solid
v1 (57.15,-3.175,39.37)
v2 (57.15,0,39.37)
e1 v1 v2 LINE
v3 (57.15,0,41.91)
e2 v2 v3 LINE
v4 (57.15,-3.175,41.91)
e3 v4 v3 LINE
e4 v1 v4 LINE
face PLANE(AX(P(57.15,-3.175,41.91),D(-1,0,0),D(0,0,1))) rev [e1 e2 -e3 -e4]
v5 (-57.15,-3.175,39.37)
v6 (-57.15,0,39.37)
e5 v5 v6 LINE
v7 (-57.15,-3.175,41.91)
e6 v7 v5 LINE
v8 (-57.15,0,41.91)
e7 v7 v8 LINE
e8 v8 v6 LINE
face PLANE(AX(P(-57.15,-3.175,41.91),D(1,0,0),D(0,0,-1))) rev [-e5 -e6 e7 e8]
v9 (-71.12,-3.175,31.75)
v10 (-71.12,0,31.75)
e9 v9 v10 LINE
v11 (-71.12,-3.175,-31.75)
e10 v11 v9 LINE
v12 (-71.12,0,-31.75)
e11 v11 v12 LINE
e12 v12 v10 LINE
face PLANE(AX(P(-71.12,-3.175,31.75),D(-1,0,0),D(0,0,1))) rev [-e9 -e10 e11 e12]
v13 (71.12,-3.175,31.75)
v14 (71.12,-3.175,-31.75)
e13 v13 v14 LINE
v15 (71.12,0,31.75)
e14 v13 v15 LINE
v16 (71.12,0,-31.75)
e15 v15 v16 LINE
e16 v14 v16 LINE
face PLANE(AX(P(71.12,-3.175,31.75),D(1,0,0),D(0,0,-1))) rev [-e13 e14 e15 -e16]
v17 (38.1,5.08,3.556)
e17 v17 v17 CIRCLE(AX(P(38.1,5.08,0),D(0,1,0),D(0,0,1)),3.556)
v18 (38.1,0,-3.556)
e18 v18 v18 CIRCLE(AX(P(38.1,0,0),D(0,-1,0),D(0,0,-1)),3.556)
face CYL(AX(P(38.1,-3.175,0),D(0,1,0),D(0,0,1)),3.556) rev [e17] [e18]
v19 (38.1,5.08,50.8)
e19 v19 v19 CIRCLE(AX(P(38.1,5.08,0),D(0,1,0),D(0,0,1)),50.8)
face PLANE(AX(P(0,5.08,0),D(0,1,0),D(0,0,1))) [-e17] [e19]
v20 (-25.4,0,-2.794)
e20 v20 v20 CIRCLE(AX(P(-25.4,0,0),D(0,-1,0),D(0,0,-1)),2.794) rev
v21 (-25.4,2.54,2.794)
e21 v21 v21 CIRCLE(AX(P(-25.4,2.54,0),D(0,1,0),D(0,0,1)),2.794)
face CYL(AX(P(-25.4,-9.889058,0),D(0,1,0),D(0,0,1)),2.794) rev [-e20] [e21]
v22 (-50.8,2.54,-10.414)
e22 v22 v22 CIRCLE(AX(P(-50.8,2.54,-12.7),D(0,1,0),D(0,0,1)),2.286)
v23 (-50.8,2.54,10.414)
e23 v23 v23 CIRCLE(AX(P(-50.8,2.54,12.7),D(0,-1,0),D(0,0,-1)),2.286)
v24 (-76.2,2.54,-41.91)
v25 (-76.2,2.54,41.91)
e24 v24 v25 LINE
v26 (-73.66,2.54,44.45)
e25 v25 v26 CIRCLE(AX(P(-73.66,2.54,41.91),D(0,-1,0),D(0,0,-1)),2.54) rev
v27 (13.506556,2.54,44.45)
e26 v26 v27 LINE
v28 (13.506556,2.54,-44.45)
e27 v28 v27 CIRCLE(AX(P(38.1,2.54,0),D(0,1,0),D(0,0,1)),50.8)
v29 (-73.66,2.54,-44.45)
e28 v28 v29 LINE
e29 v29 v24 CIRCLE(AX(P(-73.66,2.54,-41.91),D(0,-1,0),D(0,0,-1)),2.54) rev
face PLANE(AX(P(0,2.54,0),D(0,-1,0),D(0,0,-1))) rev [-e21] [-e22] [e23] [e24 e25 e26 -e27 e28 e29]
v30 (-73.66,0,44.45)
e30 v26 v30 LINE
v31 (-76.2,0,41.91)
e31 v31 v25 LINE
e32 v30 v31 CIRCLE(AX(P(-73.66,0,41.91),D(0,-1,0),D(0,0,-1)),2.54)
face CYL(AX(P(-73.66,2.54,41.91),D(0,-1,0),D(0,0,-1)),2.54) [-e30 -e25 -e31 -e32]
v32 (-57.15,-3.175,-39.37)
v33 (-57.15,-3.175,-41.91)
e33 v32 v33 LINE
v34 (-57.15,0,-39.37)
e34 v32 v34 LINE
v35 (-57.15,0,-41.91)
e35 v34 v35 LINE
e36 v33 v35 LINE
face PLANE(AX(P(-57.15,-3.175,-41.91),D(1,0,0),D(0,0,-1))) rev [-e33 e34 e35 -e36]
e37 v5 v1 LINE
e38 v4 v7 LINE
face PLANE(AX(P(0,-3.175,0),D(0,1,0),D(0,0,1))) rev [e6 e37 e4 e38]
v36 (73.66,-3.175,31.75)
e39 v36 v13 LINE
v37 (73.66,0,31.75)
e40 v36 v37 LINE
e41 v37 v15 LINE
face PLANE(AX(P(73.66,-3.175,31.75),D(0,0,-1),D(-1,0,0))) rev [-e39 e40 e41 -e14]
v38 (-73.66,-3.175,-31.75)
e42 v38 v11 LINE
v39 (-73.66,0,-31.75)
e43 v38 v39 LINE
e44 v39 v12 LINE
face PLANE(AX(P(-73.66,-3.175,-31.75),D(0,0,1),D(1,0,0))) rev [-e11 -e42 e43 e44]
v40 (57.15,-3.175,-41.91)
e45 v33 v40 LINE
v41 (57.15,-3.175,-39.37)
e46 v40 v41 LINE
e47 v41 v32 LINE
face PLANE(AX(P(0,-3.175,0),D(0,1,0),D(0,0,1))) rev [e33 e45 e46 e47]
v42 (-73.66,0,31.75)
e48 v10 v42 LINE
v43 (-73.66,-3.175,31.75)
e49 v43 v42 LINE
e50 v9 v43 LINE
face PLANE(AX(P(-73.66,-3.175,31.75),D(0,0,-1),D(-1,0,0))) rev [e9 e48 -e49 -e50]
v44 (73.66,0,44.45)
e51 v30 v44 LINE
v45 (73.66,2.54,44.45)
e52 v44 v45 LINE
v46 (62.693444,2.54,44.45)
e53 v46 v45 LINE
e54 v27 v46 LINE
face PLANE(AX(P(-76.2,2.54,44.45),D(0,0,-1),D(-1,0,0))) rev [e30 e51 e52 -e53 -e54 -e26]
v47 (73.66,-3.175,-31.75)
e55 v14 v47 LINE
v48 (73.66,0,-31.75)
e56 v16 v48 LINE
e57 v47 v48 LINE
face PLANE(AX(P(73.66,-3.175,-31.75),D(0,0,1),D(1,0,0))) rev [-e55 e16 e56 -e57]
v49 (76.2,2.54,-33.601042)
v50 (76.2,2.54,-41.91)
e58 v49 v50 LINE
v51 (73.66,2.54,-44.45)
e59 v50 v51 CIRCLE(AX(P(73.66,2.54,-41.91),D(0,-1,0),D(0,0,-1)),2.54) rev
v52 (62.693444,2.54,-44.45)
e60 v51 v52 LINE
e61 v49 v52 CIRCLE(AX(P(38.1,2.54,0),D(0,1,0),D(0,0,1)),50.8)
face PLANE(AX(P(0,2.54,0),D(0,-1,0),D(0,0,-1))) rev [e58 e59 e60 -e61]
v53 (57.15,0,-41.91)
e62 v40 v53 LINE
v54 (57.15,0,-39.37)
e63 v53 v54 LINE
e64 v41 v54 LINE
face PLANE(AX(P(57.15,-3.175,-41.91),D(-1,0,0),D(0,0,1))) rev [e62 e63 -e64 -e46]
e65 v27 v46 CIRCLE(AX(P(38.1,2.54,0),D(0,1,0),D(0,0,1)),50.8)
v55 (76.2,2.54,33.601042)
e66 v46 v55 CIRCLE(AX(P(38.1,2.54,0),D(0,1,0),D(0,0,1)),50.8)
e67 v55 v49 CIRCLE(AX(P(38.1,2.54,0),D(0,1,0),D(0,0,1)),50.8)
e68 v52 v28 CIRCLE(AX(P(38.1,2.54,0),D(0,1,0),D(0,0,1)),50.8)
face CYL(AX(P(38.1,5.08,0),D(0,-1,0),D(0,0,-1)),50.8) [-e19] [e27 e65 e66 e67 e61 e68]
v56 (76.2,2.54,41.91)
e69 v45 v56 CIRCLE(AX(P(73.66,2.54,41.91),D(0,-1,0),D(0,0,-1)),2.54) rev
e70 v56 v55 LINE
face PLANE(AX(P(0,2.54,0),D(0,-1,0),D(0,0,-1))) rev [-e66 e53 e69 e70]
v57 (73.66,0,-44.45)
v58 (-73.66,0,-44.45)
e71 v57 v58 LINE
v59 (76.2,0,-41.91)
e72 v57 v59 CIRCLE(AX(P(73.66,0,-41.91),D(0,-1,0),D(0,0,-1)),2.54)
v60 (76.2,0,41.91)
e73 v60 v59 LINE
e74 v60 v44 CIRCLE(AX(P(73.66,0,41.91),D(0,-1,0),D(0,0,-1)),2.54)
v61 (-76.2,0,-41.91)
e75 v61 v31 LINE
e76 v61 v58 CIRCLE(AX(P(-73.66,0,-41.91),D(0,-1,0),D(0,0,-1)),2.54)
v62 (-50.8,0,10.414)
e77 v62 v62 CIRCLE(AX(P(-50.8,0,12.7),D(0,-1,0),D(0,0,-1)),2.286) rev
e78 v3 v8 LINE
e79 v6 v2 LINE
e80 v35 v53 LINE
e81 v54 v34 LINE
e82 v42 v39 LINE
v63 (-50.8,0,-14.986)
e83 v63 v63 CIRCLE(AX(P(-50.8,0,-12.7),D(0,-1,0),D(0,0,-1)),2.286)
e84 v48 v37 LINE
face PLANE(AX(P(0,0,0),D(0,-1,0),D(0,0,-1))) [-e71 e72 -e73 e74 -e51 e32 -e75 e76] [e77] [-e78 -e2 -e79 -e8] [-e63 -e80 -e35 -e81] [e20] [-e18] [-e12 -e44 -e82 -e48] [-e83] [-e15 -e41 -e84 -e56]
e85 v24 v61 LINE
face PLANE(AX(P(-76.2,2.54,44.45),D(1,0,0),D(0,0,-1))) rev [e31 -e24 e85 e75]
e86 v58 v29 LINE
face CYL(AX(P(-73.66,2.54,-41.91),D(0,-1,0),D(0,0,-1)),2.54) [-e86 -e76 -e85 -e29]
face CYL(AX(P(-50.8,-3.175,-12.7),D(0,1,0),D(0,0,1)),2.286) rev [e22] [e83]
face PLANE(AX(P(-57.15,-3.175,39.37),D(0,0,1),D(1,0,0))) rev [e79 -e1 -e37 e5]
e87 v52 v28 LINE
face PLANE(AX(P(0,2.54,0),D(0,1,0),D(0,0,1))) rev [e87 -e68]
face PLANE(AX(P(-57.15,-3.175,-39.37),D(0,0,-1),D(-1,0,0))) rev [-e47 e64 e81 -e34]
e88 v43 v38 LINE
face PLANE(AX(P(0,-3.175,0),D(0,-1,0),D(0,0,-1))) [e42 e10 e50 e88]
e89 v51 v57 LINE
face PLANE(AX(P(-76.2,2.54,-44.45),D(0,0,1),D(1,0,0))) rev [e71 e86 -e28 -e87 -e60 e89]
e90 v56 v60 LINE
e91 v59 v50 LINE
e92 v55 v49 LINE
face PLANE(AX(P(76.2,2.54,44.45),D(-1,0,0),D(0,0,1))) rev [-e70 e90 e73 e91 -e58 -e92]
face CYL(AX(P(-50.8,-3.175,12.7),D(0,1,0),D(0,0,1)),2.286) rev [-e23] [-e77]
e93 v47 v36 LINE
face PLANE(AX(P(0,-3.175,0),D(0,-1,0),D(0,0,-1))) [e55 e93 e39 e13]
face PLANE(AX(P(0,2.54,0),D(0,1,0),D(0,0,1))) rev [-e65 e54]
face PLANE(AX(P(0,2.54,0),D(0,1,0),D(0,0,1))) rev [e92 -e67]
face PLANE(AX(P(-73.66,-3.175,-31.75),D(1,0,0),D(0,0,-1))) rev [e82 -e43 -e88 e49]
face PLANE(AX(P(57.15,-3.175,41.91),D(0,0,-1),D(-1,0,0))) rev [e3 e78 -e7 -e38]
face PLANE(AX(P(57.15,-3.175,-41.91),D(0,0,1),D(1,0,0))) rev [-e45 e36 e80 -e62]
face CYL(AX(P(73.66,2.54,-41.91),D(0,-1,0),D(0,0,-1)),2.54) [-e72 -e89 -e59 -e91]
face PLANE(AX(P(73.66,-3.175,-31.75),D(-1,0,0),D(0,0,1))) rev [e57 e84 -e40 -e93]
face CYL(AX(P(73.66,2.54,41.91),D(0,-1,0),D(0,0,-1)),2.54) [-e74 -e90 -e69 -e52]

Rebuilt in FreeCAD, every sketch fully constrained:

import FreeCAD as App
import Part
import Sketcher

V = App.Vector
Q = App.Units.Quantity


def edges_at(feature, points):
    """Names of the edges that pass closest to the given points."""
    edges = feature.Shape.Edges
    near = lambda p: min(range(len(edges)), key=lambda i: edges[i].distToShape(Part.Vertex(*p))[0])
    return sorted({f"Edge{near(p) + 1}" for p in points})

doc = App.newDocument("Part")
body = doc.addObject("PartDesign::Body", "Body")

sketch1 = doc.addObject("Sketcher::SketchObject", "Sketch")
body.addObject(sketch1)
sketch1.AttachmentSupport = (doc.XZ_Plane, [""])
sketch1.MapMode = "FlatFace"
sketch1.addGeometry([
    Part.LineSegment(V(-76, -44, 0), V(-76, 44, 0)),
    Part.LineSegment(V(-76, 44, 0), V(76, 44, 0)),
    Part.LineSegment(V(76, 44, 0), V(76, -44, 0)),
    Part.LineSegment(V(76, -44, 0), V(-76, -44, 0)),
], False)
sketch1.addConstraint([
    Sketcher.Constraint("Coincident", 0, 2, 1, 1),
    Sketcher.Constraint("Coincident", 1, 2, 2, 1),
    Sketcher.Constraint("Coincident", 2, 2, 3, 1),
    Sketcher.Constraint("Coincident", 3, 2, 0, 1),
    Sketcher.Constraint("Vertical", 0),
    Sketcher.Constraint("Horizontal", 1),
    Sketcher.Constraint("Vertical", 2),
    Sketcher.Constraint("Horizontal", 3),
    Sketcher.Constraint("Symmetric", 0, 2, 2, 2, -1, 1),
    Sketcher.Constraint("DistanceX", 1, 1, 1, 2, Q("6 in")),
    Sketcher.Constraint("DistanceY", 0, 1, 0, 2, Q("3.5 in")),
])
pad1 = doc.addObject("PartDesign::Pad", "Pad")
body.addObject(pad1)
pad1.Profile = sketch1
pad1.Length = Q("0.1 in")
pad1.Reversed = True

sketch2 = doc.addObject("Sketcher::SketchObject", "Sketch001")
body.addObject(sketch2)
sketch2.AttachmentSupport = (doc.XZ_Plane, [""])
sketch2.MapMode = "FlatFace"
sketch2.addGeometry([
    Part.LineSegment(V(-73.7, 31.8, 0), V(-73.7, -31.8, 0)),
    Part.LineSegment(V(-73.7, -31.8, 0), V(-71.1, -31.8, 0)),
    Part.LineSegment(V(-71.1, -31.8, 0), V(-71.1, 31.8, 0)),
    Part.LineSegment(V(-71.1, 31.8, 0), V(-73.7, 31.8, 0)),
    Part.LineSegment(V(71.1, 31.8, 0), V(71.1, -31.8, 0)),
    Part.LineSegment(V(71.1, -31.8, 0), V(73.7, -31.8, 0)),
    Part.LineSegment(V(73.7, -31.8, 0), V(73.7, 31.8, 0)),
    Part.LineSegment(V(73.7, 31.8, 0), V(71.1, 31.8, 0)),
    Part.LineSegment(V(-57.1, 41.9, 0), V(-57.1, 39.4, 0)),
    Part.LineSegment(V(-57.1, 39.4, 0), V(57.1, 39.4, 0)),
    Part.LineSegment(V(57.1, 39.4, 0), V(57.1, 41.9, 0)),
    Part.LineSegment(V(57.1, 41.9, 0), V(-57.1, 41.9, 0)),
    Part.LineSegment(V(-57.1, -39.4, 0), V(-57.1, -41.9, 0)),
    Part.LineSegment(V(-57.1, -41.9, 0), V(57.1, -41.9, 0)),
    Part.LineSegment(V(57.1, -41.9, 0), V(57.1, -39.4, 0)),
    Part.LineSegment(V(57.1, -39.4, 0), V(-57.1, -39.4, 0)),
], False)
sketch2.addConstraint([
    Sketcher.Constraint("Coincident", 0, 2, 1, 1),
    Sketcher.Constraint("Coincident", 1, 2, 2, 1),
    Sketcher.Constraint("Coincident", 2, 2, 3, 1),
    Sketcher.Constraint("Coincident", 3, 2, 0, 1),
    Sketcher.Constraint("Coincident", 4, 2, 5, 1),
    Sketcher.Constraint("Coincident", 5, 2, 6, 1),
    Sketcher.Constraint("Coincident", 6, 2, 7, 1),
    Sketcher.Constraint("Coincident", 7, 2, 4, 1),
    Sketcher.Constraint("Coincident", 8, 2, 9, 1),
    Sketcher.Constraint("Coincident", 9, 2, 10, 1),
    Sketcher.Constraint("Coincident", 10, 2, 11, 1),
    Sketcher.Constraint("Coincident", 11, 2, 8, 1),
    Sketcher.Constraint("Coincident", 12, 2, 13, 1),
    Sketcher.Constraint("Coincident", 13, 2, 14, 1),
    Sketcher.Constraint("Coincident", 14, 2, 15, 1),
    Sketcher.Constraint("Coincident", 15, 2, 12, 1),
    Sketcher.Constraint("Vertical", 0),
    Sketcher.Constraint("Horizontal", 1),
    Sketcher.Constraint("Vertical", 2),
    Sketcher.Constraint("Horizontal", 3),
    Sketcher.Constraint("Vertical", 4),
    Sketcher.Constraint("Horizontal", 5),
    Sketcher.Constraint("Vertical", 6),
    Sketcher.Constraint("Horizontal", 7),
    Sketcher.Constraint("Vertical", 8),
    Sketcher.Constraint("Horizontal", 9),
    Sketcher.Constraint("Vertical", 10),
    Sketcher.Constraint("Horizontal", 11),
    Sketcher.Constraint("Vertical", 12),
    Sketcher.Constraint("Horizontal", 13),
    Sketcher.Constraint("Vertical", 14),
    Sketcher.Constraint("Horizontal", 15),
    Sketcher.Constraint("Symmetric", 2, 2, 4, 2, -1, 1),
    Sketcher.Constraint("Symmetric", 0, 2, 6, 2, -1, 1),
    Sketcher.Constraint("Symmetric", 10, 2, 12, 2, -1, 1),
    Sketcher.Constraint("Symmetric", 8, 2, 14, 2, -1, 1),
    Sketcher.Constraint("Horizontal", 1, 2, 4, 2),
    Sketcher.Constraint("Vertical", 11, 2, 12, 2),
    Sketcher.Constraint("Equal", 7, 8),
    Sketcher.Constraint("DistanceX", 1, 1, 1, 2, Q("0.1 in")),
    Sketcher.Constraint("DistanceX", 9, 1, 9, 2, Q("4.5 in")),
    Sketcher.Constraint("DistanceY", 0, 2, 0, 1, Q("2.5 in")),
    Sketcher.Constraint("DistanceX", 0, 2, -1, 1, Q("2.9 in")),
    Sketcher.Constraint("DistanceY", 2, 2, 8, 2, Q("0.3 in")),
])
pad2 = doc.addObject("PartDesign::Pad", "Pad001")
body.addObject(pad2)
pad2.Profile = sketch2
pad2.Length = Q("0.125 in")
doc.recompute()

fillet = doc.addObject("PartDesign::Fillet", "Fillet")
body.addObject(fillet)
fillet.Base = (pad2, edges_at(pad2, [
    (76.2, 1.27, 44.45),
    (-76.2, 1.27, 44.45),
    (-76.2, 1.27, -44.45),
    (76.2, 1.27, -44.45),
]))
fillet.Radius = Q("0.1 in")

sketch3 = doc.addObject("Sketcher::SketchObject", "Sketch002")
body.addObject(sketch3)
sketch3.AttachmentSupport = (doc.XZ_Plane, [""])
sketch3.MapMode = "FlatFace"
sketch3.AttachmentOffset = App.Placement(V(0, 0, -0.1 * 25.4), App.Rotation())
sketch3.addGeometry([
    Part.Circle(V(38.1, 0, 0), V(0, 0, 1), 3.5),
    Part.Circle(V(-25.4, 0, 0), V(0, 0, 1), 2.8),
], False)
sketch3.addConstraint([
    Sketcher.Constraint("PointOnObject", 0, 3, -1),
    Sketcher.Constraint("PointOnObject", 1, 3, -1),
    Sketcher.Constraint("Diameter", 1, Q("0.22 in")),
    Sketcher.Constraint("DistanceX", 1, 3, -1, 1, Q("1 in")),
    Sketcher.Constraint("Diameter", 0, Q("0.2753 in")),
    Sketcher.Constraint("DistanceX", -1, 1, 0, 3, Q("1.5 in")),
])
pocket1 = doc.addObject("PartDesign::Pocket", "Pocket")
body.addObject(pocket1)
pocket1.Profile = sketch3
pocket1.Length = Q("0.1 in")
pocket1.Reversed = True

sketch4 = doc.addObject("Sketcher::SketchObject", "Sketch003")
body.addObject(sketch4)
sketch4.AttachmentSupport = (doc.XZ_Plane, [""])
sketch4.MapMode = "FlatFace"
sketch4.AttachmentOffset = App.Placement(V(0, 0, -0.1 * 25.4), App.Rotation())
sketch4.addGeometry([
    Part.Circle(V(-50.8, -12.7, 0), V(0, 0, 1), 2.3),
    Part.Circle(V(-50.8, 12.7, 0), V(0, 0, 1), 2.3),
], False)
sketch4.addConstraint([
    Sketcher.Constraint("Equal", 0, 1),
    Sketcher.Constraint("Symmetric", 0, 3, 1, 3, -1),
    Sketcher.Constraint("Diameter", 0, Q("0.18 in")),
    Sketcher.Constraint("DistanceX", 0, 3, -1, 1, Q("2 in")),
    Sketcher.Constraint("DistanceY", 0, 3, 1, 3, Q("1 in")),
])
pocket2 = doc.addObject("PartDesign::Pocket", "Pocket001")
body.addObject(pocket2)
pocket2.Profile = sketch4
pocket2.Type = "ThroughAll"
pocket2.Reversed = True

sketch5 = doc.addObject("Sketcher::SketchObject", "Sketch004")
body.addObject(sketch5)
sketch5.AttachmentSupport = (doc.XZ_Plane, [""])
sketch5.MapMode = "FlatFace"
sketch5.AttachmentOffset = App.Placement(V(0, 0, -0.1 * 25.4), App.Rotation())
sketch5.addGeometry(Part.Circle(V(38, 0, 0), V(0, 0, 1), 51), False)
sketch5.addConstraint([
    Sketcher.Constraint("PointOnObject", 0, 3, -1),
    Sketcher.Constraint("Diameter", 0, Q("4 in")),
    Sketcher.Constraint("DistanceX", -1, 1, 0, 3, Q("1.5 in")),
])
pad3 = doc.addObject("PartDesign::Pad", "Pad002")
body.addObject(pad3)
pad3.Profile = sketch5
pad3.Length = Q("0.1 in")
pad3.Reversed = True

sketch6 = doc.addObject("Sketcher::SketchObject", "Sketch005")
body.addObject(sketch6)
sketch6.AttachmentSupport = (doc.XZ_Plane, [""])
sketch6.MapMode = "FlatFace"
sketch6.AttachmentOffset = App.Placement(V(0, 0, -0.2 * 25.4), App.Rotation())
sketch6.addGeometry(Part.Circle(V(38.1, 0, 0), V(0, 0, 1), 3.6), False)
sketch6.addConstraint([
    Sketcher.Constraint("PointOnObject", 0, 3, -1),
    Sketcher.Constraint("Diameter", 0, Q("0.28 in")),
    Sketcher.Constraint("DistanceX", -1, 1, 0, 3, Q("1.5 in")),
])
pocket3 = doc.addObject("PartDesign::Pocket", "Pocket002")
body.addObject(pocket3)
pocket3.Profile = sketch6
pocket3.Type = "ThroughAll"
pocket3.Reversed = True

doc.recompute()
